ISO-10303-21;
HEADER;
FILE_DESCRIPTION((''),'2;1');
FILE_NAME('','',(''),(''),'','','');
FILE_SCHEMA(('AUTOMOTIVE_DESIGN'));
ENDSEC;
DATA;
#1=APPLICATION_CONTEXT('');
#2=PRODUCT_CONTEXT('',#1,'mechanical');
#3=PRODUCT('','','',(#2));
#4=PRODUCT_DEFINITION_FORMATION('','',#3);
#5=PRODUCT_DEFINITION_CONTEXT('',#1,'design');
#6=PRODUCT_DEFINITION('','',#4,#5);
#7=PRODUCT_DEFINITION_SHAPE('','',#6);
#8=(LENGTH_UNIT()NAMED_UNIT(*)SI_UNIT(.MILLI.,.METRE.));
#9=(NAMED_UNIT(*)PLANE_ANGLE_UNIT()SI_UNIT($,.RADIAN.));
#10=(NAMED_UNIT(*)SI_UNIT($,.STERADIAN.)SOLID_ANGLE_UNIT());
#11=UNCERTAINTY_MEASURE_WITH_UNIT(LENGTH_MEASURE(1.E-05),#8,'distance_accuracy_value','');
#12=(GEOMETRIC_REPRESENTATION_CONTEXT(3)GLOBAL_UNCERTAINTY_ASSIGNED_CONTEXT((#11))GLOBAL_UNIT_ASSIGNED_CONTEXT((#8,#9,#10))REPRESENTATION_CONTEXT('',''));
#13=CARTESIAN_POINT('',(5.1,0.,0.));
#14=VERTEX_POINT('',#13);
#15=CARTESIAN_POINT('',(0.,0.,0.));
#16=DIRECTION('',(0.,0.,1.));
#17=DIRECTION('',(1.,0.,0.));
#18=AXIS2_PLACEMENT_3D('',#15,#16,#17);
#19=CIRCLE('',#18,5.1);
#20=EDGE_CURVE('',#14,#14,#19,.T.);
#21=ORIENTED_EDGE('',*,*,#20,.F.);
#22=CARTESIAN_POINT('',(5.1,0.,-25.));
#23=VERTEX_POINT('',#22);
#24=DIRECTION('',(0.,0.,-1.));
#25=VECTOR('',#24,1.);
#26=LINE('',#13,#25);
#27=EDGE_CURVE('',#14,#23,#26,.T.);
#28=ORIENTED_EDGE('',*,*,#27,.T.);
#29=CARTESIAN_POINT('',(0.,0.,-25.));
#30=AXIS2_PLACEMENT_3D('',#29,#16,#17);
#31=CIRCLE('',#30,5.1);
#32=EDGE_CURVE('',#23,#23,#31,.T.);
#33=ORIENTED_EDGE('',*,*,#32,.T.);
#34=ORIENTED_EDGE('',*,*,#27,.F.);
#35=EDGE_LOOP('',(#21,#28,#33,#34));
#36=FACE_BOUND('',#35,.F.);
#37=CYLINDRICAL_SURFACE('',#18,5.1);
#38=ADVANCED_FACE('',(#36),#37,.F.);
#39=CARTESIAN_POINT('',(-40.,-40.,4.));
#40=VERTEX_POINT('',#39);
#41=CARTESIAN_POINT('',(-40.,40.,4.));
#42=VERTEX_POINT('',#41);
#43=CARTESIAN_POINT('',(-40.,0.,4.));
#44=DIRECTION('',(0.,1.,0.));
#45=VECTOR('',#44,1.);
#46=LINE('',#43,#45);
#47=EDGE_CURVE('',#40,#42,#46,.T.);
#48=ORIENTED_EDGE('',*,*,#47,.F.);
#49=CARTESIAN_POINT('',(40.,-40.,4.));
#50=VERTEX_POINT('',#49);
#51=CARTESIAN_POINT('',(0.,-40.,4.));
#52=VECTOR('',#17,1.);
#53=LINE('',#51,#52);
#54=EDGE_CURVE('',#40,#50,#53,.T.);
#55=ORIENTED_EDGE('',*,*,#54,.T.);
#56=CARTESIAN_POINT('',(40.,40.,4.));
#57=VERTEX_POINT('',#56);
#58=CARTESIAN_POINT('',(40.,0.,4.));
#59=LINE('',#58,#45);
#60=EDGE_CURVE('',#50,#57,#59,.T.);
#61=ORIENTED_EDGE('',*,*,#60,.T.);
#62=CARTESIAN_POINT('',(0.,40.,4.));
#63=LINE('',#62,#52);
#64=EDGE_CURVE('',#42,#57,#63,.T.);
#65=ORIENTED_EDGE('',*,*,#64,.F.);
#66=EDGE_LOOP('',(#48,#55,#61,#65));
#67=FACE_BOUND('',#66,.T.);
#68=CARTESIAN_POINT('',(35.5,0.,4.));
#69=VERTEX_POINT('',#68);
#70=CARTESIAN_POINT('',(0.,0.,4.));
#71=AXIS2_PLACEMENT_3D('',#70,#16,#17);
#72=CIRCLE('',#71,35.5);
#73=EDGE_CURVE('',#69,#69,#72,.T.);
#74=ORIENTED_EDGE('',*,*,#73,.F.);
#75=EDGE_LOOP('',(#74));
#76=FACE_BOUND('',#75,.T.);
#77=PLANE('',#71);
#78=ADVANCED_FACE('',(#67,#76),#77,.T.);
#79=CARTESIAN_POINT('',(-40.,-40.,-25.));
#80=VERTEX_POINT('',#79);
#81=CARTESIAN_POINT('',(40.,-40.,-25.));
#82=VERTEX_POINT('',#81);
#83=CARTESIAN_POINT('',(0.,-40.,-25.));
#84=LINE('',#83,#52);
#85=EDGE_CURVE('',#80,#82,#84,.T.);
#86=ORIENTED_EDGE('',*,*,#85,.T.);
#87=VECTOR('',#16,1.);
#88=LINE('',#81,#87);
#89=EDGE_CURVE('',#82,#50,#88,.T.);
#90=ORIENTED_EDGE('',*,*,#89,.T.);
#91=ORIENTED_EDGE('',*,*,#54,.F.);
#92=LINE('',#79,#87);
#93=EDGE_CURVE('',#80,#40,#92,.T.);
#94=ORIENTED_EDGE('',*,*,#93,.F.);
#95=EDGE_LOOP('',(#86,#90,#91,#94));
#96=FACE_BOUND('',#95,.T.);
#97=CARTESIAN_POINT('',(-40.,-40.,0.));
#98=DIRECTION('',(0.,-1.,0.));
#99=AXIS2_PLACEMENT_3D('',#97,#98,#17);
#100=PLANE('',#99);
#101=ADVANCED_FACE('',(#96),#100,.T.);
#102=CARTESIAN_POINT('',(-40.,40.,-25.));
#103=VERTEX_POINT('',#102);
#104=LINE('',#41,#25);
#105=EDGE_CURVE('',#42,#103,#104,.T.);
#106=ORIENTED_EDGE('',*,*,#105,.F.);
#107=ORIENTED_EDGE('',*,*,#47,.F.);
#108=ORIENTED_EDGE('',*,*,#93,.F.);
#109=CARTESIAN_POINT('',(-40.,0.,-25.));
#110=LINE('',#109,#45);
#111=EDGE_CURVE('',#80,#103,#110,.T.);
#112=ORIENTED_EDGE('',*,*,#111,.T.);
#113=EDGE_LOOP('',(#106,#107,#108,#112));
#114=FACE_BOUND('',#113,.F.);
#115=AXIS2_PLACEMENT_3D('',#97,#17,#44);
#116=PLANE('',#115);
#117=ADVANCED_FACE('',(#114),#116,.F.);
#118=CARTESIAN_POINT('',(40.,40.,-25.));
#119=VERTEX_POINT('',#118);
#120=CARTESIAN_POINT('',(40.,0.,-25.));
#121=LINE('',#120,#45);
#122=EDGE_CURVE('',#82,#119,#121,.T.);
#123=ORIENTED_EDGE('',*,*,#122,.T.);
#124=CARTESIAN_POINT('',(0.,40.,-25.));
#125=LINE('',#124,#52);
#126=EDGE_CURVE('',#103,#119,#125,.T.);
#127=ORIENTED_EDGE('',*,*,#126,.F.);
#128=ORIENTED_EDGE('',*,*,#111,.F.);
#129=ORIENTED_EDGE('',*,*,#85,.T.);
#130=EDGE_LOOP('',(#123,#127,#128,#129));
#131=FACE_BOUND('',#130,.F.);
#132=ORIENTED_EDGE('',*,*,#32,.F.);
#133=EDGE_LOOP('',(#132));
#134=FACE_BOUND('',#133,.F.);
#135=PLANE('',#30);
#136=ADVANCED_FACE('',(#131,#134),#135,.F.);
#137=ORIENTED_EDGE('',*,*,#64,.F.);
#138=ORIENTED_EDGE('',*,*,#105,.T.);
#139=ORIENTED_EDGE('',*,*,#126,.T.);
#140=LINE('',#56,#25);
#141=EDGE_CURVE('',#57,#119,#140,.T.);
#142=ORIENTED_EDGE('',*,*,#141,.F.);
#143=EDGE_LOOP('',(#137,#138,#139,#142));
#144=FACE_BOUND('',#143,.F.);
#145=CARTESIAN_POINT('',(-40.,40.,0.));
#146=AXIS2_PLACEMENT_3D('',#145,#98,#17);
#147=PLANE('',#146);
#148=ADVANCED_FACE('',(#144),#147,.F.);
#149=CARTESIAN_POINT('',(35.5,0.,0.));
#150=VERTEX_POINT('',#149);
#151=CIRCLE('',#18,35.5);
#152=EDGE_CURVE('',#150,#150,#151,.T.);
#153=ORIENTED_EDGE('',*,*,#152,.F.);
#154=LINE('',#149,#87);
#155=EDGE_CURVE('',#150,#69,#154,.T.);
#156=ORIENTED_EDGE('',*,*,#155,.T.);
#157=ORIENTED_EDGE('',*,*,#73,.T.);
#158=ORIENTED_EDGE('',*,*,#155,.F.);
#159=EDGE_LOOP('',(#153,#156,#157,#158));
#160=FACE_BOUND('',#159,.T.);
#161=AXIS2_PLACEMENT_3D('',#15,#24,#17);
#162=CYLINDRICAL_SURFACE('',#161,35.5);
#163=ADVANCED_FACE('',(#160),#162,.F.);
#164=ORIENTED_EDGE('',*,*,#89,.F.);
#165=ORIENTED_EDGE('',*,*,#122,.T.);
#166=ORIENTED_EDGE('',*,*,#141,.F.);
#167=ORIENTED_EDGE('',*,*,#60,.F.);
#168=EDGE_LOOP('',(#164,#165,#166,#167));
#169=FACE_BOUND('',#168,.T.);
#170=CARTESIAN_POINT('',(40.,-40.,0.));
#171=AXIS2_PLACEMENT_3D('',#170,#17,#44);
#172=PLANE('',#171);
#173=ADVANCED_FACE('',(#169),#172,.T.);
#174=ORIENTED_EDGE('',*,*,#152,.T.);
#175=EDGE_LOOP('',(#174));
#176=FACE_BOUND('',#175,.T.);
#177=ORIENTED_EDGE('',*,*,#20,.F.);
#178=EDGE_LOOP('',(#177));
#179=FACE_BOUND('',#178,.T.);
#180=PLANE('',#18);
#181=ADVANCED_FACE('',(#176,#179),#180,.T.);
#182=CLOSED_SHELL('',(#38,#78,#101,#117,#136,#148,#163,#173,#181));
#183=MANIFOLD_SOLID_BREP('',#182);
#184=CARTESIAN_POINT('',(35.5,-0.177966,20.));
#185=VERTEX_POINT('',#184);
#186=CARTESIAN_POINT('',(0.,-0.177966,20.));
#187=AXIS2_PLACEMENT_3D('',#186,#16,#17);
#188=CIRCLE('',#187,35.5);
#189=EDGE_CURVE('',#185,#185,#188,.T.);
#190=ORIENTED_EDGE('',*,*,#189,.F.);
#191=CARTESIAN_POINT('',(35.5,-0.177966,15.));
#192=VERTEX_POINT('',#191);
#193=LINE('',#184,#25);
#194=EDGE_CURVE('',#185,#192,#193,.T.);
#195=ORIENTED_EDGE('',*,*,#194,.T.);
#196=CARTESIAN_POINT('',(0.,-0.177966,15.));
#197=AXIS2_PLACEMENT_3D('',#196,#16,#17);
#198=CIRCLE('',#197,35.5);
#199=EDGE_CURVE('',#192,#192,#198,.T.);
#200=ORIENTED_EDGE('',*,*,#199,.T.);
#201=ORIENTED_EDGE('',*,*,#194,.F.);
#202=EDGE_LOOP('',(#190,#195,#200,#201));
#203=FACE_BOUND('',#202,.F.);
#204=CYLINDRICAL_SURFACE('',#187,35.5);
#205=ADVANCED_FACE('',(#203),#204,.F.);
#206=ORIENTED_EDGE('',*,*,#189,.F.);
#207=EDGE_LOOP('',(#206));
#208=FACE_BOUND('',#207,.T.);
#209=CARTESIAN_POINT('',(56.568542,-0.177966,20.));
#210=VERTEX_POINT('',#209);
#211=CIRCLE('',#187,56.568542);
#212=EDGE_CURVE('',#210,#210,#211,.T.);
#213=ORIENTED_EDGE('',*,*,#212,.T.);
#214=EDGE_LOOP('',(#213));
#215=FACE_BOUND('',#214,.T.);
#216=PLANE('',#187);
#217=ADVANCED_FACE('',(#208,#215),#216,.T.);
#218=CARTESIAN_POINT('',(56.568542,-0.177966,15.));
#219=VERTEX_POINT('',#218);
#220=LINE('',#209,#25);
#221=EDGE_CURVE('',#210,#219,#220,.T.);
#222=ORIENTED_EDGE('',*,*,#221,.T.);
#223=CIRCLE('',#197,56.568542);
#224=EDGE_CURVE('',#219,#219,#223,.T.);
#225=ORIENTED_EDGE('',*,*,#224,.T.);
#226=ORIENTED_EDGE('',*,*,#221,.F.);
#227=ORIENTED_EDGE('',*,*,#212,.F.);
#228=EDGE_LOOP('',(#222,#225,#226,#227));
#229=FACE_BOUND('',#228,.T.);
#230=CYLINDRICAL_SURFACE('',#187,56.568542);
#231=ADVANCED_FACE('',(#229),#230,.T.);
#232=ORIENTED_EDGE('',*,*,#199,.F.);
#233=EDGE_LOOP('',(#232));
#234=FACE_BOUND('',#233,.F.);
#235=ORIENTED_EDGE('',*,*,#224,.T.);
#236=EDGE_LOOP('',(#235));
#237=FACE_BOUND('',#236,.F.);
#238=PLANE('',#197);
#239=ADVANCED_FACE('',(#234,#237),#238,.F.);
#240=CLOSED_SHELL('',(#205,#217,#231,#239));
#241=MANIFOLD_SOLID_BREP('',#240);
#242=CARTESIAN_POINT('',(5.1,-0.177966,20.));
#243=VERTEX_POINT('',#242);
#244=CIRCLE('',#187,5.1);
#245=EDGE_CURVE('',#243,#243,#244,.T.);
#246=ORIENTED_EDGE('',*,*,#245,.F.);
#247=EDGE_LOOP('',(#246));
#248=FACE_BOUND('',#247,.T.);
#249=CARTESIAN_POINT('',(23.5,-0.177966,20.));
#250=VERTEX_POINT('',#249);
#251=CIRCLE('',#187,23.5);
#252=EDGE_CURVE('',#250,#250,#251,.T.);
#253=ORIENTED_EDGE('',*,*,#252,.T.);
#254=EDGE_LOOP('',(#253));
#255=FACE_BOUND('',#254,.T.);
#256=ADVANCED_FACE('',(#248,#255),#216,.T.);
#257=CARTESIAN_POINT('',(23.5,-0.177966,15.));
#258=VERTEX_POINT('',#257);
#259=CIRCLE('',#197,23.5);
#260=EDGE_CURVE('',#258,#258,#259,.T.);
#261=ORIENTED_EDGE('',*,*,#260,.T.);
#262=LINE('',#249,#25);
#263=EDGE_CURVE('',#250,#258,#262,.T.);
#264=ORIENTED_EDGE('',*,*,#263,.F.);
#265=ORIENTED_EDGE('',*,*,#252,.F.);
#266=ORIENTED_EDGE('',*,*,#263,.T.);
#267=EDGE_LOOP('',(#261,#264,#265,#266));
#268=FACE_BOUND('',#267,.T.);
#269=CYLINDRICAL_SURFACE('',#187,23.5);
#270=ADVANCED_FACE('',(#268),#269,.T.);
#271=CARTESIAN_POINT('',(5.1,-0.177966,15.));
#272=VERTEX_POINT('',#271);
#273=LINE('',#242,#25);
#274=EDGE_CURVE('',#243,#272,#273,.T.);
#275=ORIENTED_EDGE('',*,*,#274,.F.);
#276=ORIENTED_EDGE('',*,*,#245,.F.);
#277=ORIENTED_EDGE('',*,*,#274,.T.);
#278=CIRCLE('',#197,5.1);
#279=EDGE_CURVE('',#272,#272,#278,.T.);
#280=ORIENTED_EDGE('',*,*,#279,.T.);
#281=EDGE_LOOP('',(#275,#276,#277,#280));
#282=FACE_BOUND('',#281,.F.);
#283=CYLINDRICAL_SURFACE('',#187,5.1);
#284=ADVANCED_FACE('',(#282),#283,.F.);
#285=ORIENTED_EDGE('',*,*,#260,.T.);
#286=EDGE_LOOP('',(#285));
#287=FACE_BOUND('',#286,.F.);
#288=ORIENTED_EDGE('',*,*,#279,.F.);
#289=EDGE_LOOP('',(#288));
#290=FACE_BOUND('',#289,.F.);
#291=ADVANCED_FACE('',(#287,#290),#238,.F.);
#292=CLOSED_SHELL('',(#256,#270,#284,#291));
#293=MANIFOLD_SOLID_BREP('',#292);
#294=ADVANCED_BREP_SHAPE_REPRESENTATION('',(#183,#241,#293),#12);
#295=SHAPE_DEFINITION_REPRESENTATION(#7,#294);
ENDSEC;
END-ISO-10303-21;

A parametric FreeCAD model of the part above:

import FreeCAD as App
import Part
import Sketcher
from FreeCAD import Vector


def add_polygon(sketch, points):
    """Adds a closed chain of lines whose ends are joined by coincident constraints."""
    first, n = sketch.GeometryCount, len(points)
    for a, b in zip(points, points[1:] + points[:1]):
        sketch.addGeometry(Part.LineSegment(App.Vector(*a, 0), App.Vector(*b, 0)), False)
    for i in range(n):
        sketch.addConstraint(Sketcher.Constraint("Coincident", first + i, 2, first + (i + 1) % n, 1))

doc = App.newDocument("Part")
body = doc.addObject("PartDesign::Body", "Body")

# Sketch on XY plane
sketch1 = body.newObject("Sketcher::SketchObject", "Sketch")
sketch1.AttachmentSupport = (doc.getObject("XY_Plane"), [""])
sketch1.MapMode = "FlatFace"
add_polygon(sketch1, [(-40, 40), (-40, -40), (40, -40), (40, 40)])  # lines 0-3
sketch1.addGeometry(Part.Circle(Vector(0, 0, 0), Vector(0, 0, 1), 35.5), False)  # 4
sketch1.addConstraint(Sketcher.Constraint("Vertical", 0))
sketch1.addConstraint(Sketcher.Constraint("Horizontal", 1))
sketch1.addConstraint(Sketcher.Constraint("Vertical", 2))
sketch1.addConstraint(Sketcher.Constraint("Horizontal", 3))
sketch1.addConstraint(Sketcher.Constraint("Coincident", 4, 3, -1, 1))
sketch1.addConstraint(Sketcher.Constraint("Symmetric", 0, 2, 2, 2, -1, 1))
sketch1.addConstraint(Sketcher.Constraint("Equal", 3, 0))
sketch1.addConstraint(Sketcher.Constraint("Diameter", 4, 71.0))
sketch1.addConstraint(Sketcher.Constraint("DistanceX", 1, 1, 1, 2, 80.0))
pad1 = body.newObject("PartDesign::Pad", "Pad")
pad1.Profile = sketch1
pad1.Length = 4

# Sketch on XY plane
sketch2 = body.newObject("Sketcher::SketchObject", "Sketch001")
sketch2.AttachmentSupport = (doc.getObject("XY_Plane"), [""])
sketch2.MapMode = "FlatFace"
add_polygon(sketch2, [(-40, 40), (-40, -40), (40, -40), (40, 40)])  # lines 0-3
sketch2.addGeometry(Part.Circle(Vector(0, 0, 0), Vector(0, 0, 1), 5.1), False)  # 4
sketch2.addConstraint(Sketcher.Constraint("Vertical", 0))
sketch2.addConstraint(Sketcher.Constraint("Horizontal", 1))
sketch2.addConstraint(Sketcher.Constraint("Vertical", 2))
sketch2.addConstraint(Sketcher.Constraint("Horizontal", 3))
sketch2.addConstraint(Sketcher.Constraint("Coincident", 4, 3, -1, 1))
sketch2.addConstraint(Sketcher.Constraint("Symmetric", 0, 2, 2, 2, -1, 1))
sketch2.addConstraint(Sketcher.Constraint("Equal", 3, 0))
sketch2.addConstraint(Sketcher.Constraint("Diameter", 4, 10.2))
sketch2.addConstraint(Sketcher.Constraint("DistanceX", 1, 1, 1, 2, 80.0))
pad2 = body.newObject("PartDesign::Pad", "Pad001")
pad2.Profile = sketch2
pad2.Length = 25
pad2.Reversed = True
body2 = doc.addObject("PartDesign::Body", "Body001")

# Sketch on XY plane
sketch3 = body2.newObject("Sketcher::SketchObject", "Sketch002")
sketch3.AttachmentSupport = (doc.getObject("XY_Plane001"), [""])
sketch3.MapMode = "FlatFace"
sketch3.AttachmentOffset = App.Placement(Vector(0, 0, 20), App.Rotation())
sketch3.addGeometry(Part.Circle(Vector(0, -0.177966, 0), Vector(0, 0, 1), 56.568542), False)
sketch3.addGeometry(Part.Circle(Vector(0, -0.177966, 0), Vector(0, 0, 1), 35.5), False)
sketch3.addConstraint(Sketcher.Constraint("Coincident", 1, 3, 0, 3))
sketch3.addConstraint(Sketcher.Constraint("PointOnObject", 0, 3, -2))
sketch3.addConstraint(Sketcher.Constraint("Diameter", 1, 71.0))
sketch3.addConstraint(Sketcher.Constraint("Diameter", 0, 113.137085))
sketch3.addConstraint(Sketcher.Constraint("DistanceY", 0, 3, -1, 1, 0.177966))
pad3 = body2.newObject("PartDesign::Pad", "Pad002")
pad3.Profile = sketch3
pad3.Length = 5
pad3.Reversed = True
body3 = doc.addObject("PartDesign::Body", "Body002")

# Sketch on XY plane
sketch4 = body3.newObject("Sketcher::SketchObject", "Sketch003")
sketch4.AttachmentSupport = (doc.getObject("XY_Plane002"), [""])
sketch4.MapMode = "FlatFace"
sketch4.AttachmentOffset = App.Placement(Vector(0, 0, 20), App.Rotation())
sketch4.addGeometry(Part.Circle(Vector(0, -0.177966, 0), Vector(0, 0, 1), 23.5), False)
sketch4.addGeometry(Part.Circle(Vector(0, -0.177966, 0), Vector(0, 0, 1), 5.1), False)
sketch4.addConstraint(Sketcher.Constraint("Coincident", 1, 3, 0, 3))
sketch4.addConstraint(Sketcher.Constraint("PointOnObject", 0, 3, -2))
sketch4.addConstraint(Sketcher.Constraint("Diameter", 0, 47.0))
sketch4.addConstraint(Sketcher.Constraint("Diameter", 1, 10.2))
sketch4.addConstraint(Sketcher.Constraint("DistanceY", 0, 3, -1, 1, 0.177966))
pad4 = body3.newObject("PartDesign::Pad", "Pad003")
pad4.Profile = sketch4
pad4.Length = 5
pad4.Reversed = True

doc.recompute()
